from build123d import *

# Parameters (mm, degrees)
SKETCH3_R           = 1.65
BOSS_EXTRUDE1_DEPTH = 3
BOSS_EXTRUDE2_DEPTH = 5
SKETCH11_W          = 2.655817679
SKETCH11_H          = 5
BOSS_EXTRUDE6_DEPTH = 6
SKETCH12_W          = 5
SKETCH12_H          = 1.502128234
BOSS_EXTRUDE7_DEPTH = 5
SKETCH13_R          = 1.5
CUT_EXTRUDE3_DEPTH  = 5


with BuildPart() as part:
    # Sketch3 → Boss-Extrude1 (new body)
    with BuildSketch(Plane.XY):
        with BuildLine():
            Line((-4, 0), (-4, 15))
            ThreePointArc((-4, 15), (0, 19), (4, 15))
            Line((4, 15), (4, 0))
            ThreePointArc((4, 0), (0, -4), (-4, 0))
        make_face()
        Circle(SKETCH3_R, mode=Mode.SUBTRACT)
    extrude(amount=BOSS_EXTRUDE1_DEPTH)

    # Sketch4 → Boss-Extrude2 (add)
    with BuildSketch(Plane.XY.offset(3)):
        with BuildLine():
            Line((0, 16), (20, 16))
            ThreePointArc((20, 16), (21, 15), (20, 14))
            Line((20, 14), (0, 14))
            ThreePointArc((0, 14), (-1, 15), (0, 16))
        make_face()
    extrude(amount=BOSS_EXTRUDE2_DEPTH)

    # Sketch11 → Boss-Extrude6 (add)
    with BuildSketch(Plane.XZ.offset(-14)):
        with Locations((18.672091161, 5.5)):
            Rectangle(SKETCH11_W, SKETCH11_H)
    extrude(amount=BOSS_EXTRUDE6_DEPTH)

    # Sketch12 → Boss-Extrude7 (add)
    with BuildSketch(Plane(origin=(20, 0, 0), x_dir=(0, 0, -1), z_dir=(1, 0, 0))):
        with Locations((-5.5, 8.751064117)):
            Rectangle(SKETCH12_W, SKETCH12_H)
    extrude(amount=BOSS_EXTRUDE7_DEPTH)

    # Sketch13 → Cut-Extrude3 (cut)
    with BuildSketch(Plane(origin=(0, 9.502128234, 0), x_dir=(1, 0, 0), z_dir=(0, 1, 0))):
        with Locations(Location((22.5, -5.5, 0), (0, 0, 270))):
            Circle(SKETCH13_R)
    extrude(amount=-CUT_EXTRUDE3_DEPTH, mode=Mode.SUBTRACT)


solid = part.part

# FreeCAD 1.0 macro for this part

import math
import FreeCAD as App
import Part
import Sketcher

V = App.Vector
Q = App.Units.Quantity


def add_polygon(sketch, points):
    """Adds a closed chain of lines whose ends are joined by coincident constraints."""
    first, n = sketch.GeometryCount, len(points)
    for a, b in zip(points, points[1:] + points[:1]):
        sketch.addGeometry(Part.LineSegment(App.Vector(*a, 0), App.Vector(*b, 0)), False)
    for i in range(n):
        sketch.addConstraint(Sketcher.Constraint("Coincident", first + i, 2, first + (i + 1) % n, 1))

doc = App.newDocument("Part")
body = doc.addObject("PartDesign::Body", "Body")

sketch1 = body.newObject("Sketcher::SketchObject", "Sketch")
sketch1.AttachmentSupport = (doc.getObject("XY_Plane"), [""])
sketch1.MapMode = "FlatFace"
sketch1.addGeometry(Part.LineSegment(V(-4, 15, 0), V(-4, 0, 0)), False)
sketch1.addGeometry(Part.ArcOfCircle(Part.Circle(V(0, 0, 0), V(0, 0, 1), 4), math.radians(180), math.radians(360)), False)
sketch1.addGeometry(Part.LineSegment(V(4, 0, 0), V(4, 15, 0)), False)
sketch1.addGeometry(Part.ArcOfCircle(Part.Circle(V(0, 15, 0), V(0, 0, 1), 4), math.radians(0), math.radians(180)), False)
sketch1.addGeometry(Part.Circle(V(0, 0, 0), V(0, 0, 1), 1.6), False)
sketch1.addConstraint(Sketcher.Constraint("Tangent", 0, 2, 1, 1))
sketch1.addConstraint(Sketcher.Constraint("Tangent", 1, 2, 2, 1))
sketch1.addConstraint(Sketcher.Constraint("Tangent", 2, 2, 3, 1))
sketch1.addConstraint(Sketcher.Constraint("Tangent", 3, 2, 0, 1))
sketch1.addConstraint(Sketcher.Constraint("Vertical", 0))
sketch1.addConstraint(Sketcher.Constraint("Vertical", 2))
sketch1.addConstraint(Sketcher.Constraint("Coincident", 1, 3, -1, 1))
sketch1.addConstraint(Sketcher.Constraint("Coincident", 4, 3, -1, 1))
sketch1.addConstraint(Sketcher.Constraint("Radius", 1, Q("4 mm")))
sketch1.addConstraint(Sketcher.Constraint("Diameter", 4, Q("3.3 mm")))
sketch1.addConstraint(Sketcher.Constraint("DistanceY", 0, 2, 0, 1, Q("15 mm")))
pad1 = body.newObject("PartDesign::Pad", "Pad")
pad1.Profile = sketch1
pad1.Length = 3

sketch2 = body.newObject("Sketcher::SketchObject", "Sketch001")
sketch2.AttachmentSupport = (doc.getObject("XY_Plane"), [""])
sketch2.MapMode = "FlatFace"
sketch2.AttachmentOffset = App.Placement(V(0, 0, 3), App.Rotation())
sketch2.addGeometry(Part.LineSegment(V(20, 16, 0), V(0, 16, 0)), False)
sketch2.addGeometry(Part.ArcOfCircle(Part.Circle(V(0, 15, 0), V(0, 0, 1), 1), math.radians(90), math.radians(270)), False)
sketch2.addGeometry(Part.LineSegment(V(0, 14, 0), V(20, 14, 0)), False)
sketch2.addGeometry(Part.ArcOfCircle(Part.Circle(V(20, 15, 0), V(0, 0, 1), 1), math.radians(-90), math.radians(90)), False)
sketch2.addConstraint(Sketcher.Constraint("Tangent", 0, 2, 1, 1))
sketch2.addConstraint(Sketcher.Constraint("Tangent", 1, 2, 2, 1))
sketch2.addConstraint(Sketcher.Constraint("Tangent", 2, 2, 3, 1))
sketch2.addConstraint(Sketcher.Constraint("Tangent", 3, 2, 0, 1))
sketch2.addConstraint(Sketcher.Constraint("Horizontal", 0))
sketch2.addConstraint(Sketcher.Constraint("Horizontal", 2))
sketch2.addConstraint(Sketcher.Constraint("PointOnObject", 1, 3, -2))
sketch2.addConstraint(Sketcher.Constraint("Radius", 1, Q("1 mm")))
sketch2.addConstraint(Sketcher.Constraint("DistanceX", 0, 2, 0, 1, Q("20 mm")))
sketch2.addConstraint(Sketcher.Constraint("DistanceY", -1, 1, 1, 3, Q("15 mm")))
pad2 = body.newObject("PartDesign::Pad", "Pad001")
pad2.Profile = sketch2
pad2.Length = 5

sketch3 = body.newObject("Sketcher::SketchObject", "Sketch002")
sketch3.AttachmentSupport = (doc.getObject("XZ_Plane"), [""])
sketch3.MapMode = "FlatFace"
sketch3.AttachmentOffset = App.Placement(V(0, 0, -14), App.Rotation())
add_polygon(sketch3, [(17.3, 8), (17.3, 3), (20, 3), (20, 8)])
sketch3.addConstraint(Sketcher.Constraint("Vertical", 0))
sketch3.addConstraint(Sketcher.Constraint("Horizontal", 1))
sketch3.addConstraint(Sketcher.Constraint("Vertical", 2))
sketch3.addConstraint(Sketcher.Constraint("Horizontal", 3))
sketch3.addConstraint(Sketcher.Constraint("DistanceY", 0, 2, 0, 1, Q("5 mm")))
sketch3.addConstraint(Sketcher.Constraint("DistanceY", -1, 1, 0, 2, Q("3 mm")))
sketch3.addConstraint(Sketcher.Constraint("DistanceX", -1, 1, 1, 2, Q("20 mm")))
sketch3.addConstraint(Sketcher.Constraint("DistanceX", 1, 1, 1, 2, Q("2.655818 mm")))
pad3 = body.newObject("PartDesign::Pad", "Pad002")
pad3.Profile = sketch3
pad3.Length = 6

sketch4 = body.newObject("Sketcher::SketchObject", "Sketch003")
sketch4.AttachmentSupport = (doc.getObject("YZ_Plane"), [""])
sketch4.MapMode = "FlatFace"
sketch4.AttachmentOffset = App.Placement(V(0, 0, 20), App.Rotation())
add_polygon(sketch4, [(9.5, 8), (8, 8), (8, 3), (9.5, 3)])
sketch4.addConstraint(Sketcher.Constraint("Horizontal", 0))
sketch4.addConstraint(Sketcher.Constraint("Vertical", 1))
sketch4.addConstraint(Sketcher.Constraint("Horizontal", 2))
sketch4.addConstraint(Sketcher.Constraint("Vertical", 3))
sketch4.addConstraint(Sketcher.Constraint("DistanceY", 1, 2, 1, 1, Q("5 mm")))
sketch4.addConstraint(Sketcher.Constraint("DistanceX", -1, 1, 0, 2, Q("8 mm")))
sketch4.addConstraint(Sketcher.Constraint("DistanceY", -1, 1, 0, 2, Q("8 mm")))
sketch4.addConstraint(Sketcher.Constraint("DistanceX", 0, 2, 0, 1, Q("1.502128 mm")))
pad4 = body.newObject("PartDesign::Pad", "Pad003")
pad4.Profile = sketch4
pad4.Length = 5

sketch5 = body.newObject("Sketcher::SketchObject", "Sketch004")
sketch5.AttachmentSupport = (doc.getObject("XZ_Plane"), [""])
sketch5.MapMode = "FlatFace"
sketch5.AttachmentOffset = App.Placement(V(0, 0, -9.502128), App.Rotation())
sketch5.addGeometry(Part.Circle(V(22.5, 5.5, 0), V(0, 0, 1), 1.5), False)
sketch5.addConstraint(Sketcher.Constraint("Diameter", 0, Q("3 mm")))
sketch5.addConstraint(Sketcher.Constraint("DistanceX", -1, 1, 0, 3, Q("22.5 mm")))
sketch5.addConstraint(Sketcher.Constraint("DistanceY", -1, 1, 0, 3, Q("5.5 mm")))
pocket1 = body.newObject("PartDesign::Pocket", "Pocket")
pocket1.Profile = sketch5
pocket1.Length = 5
pocket1.Reversed = True

doc.recompute()
